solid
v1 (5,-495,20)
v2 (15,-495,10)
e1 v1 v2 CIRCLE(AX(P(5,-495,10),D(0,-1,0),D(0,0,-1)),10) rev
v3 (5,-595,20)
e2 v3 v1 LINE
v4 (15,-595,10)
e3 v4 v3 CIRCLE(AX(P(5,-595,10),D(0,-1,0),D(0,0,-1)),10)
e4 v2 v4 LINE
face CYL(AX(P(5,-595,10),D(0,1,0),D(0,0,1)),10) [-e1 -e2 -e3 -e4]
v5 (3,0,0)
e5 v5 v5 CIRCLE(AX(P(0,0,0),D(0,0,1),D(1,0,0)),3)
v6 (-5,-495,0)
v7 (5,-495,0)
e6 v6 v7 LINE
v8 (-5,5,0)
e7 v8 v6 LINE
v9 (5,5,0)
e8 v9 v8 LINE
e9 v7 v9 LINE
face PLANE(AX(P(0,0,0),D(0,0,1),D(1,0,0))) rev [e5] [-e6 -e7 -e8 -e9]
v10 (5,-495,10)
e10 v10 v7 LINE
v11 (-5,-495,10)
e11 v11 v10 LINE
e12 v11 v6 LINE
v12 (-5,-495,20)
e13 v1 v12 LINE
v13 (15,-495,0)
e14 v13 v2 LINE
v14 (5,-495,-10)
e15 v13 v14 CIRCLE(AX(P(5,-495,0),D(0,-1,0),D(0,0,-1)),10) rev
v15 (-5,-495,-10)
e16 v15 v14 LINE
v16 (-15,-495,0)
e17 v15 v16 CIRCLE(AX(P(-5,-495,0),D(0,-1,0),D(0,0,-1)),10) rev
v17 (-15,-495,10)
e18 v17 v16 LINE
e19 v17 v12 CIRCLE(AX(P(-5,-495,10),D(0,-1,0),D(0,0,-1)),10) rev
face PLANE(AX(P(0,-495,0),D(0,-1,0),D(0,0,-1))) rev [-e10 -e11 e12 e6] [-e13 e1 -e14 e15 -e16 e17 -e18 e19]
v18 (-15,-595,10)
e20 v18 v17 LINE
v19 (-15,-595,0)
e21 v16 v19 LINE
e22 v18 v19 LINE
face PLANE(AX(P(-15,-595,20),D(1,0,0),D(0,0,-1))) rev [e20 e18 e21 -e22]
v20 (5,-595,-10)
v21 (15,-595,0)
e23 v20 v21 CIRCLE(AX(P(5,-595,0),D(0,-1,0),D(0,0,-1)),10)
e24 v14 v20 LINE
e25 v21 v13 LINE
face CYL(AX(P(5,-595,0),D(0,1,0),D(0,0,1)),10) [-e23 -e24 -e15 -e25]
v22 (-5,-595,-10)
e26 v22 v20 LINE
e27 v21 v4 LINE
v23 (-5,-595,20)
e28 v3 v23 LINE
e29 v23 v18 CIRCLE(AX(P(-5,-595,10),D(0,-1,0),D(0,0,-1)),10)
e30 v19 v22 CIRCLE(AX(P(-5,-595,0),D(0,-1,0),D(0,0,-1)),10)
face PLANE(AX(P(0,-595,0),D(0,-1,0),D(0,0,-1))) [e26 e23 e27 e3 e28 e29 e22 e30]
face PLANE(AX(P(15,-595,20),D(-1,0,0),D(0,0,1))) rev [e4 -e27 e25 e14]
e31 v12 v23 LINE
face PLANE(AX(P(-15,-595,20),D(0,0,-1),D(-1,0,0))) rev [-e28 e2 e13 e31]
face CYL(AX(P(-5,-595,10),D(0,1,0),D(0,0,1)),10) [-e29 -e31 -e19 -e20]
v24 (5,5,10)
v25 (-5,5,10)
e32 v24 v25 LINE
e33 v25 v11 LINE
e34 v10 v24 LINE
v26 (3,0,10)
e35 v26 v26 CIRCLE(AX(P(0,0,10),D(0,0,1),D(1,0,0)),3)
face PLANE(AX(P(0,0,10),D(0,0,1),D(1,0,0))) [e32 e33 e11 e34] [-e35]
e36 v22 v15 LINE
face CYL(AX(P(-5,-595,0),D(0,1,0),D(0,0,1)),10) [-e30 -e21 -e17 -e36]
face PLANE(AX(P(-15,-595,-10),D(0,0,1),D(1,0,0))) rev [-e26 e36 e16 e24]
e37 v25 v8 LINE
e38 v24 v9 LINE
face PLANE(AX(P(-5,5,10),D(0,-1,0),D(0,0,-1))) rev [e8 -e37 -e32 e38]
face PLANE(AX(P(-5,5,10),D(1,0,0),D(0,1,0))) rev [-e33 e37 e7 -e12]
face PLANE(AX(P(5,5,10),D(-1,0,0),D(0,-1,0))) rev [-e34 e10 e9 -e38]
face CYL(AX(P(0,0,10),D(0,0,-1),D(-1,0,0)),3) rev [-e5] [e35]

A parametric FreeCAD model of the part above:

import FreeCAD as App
import Part
import Sketcher
Q = App.Units.Quantity


def edges_at(feature, points):
    """Names of the edges that pass closest to the given points."""
    edges = feature.Shape.Edges
    near = lambda p: min(range(len(edges)), key=lambda i: edges[i].distToShape(Part.Vertex(*p))[0])
    return sorted({f"Edge{near(p) + 1}" for p in points})

doc = App.newDocument("Part")
body = doc.addObject("PartDesign::Body", "Body")

sketch1 = body.newObject("Sketcher::SketchObject", "Sketch")
sketch1.AttachmentSupport = (doc.getObject("XY_Plane"), [""])
sketch1.MapMode = "FlatFace"
sketch1.addGeometry([
    Part.LineSegment(App.Vector(-5, 5, 0), App.Vector(-5, -495, 0)),
    Part.LineSegment(App.Vector(-5, -495, 0), App.Vector(5, -495, 0)),
    Part.LineSegment(App.Vector(5, -495, 0), App.Vector(5, 5, 0)),
    Part.LineSegment(App.Vector(5, 5, 0), App.Vector(-5, 5, 0)),
    Part.Circle(App.Vector(0, 0, 0), App.Vector(0, 0, 1), 3),
], False)
sketch1.addConstraint([
    Sketcher.Constraint("Coincident", 0, 2, 1, 1),
    Sketcher.Constraint("Coincident", 1, 2, 2, 1),
    Sketcher.Constraint("Coincident", 2, 2, 3, 1),
    Sketcher.Constraint("Coincident", 3, 2, 0, 1),
    Sketcher.Constraint("Vertical", 0),
    Sketcher.Constraint("Horizontal", 1),
    Sketcher.Constraint("Vertical", 2),
    Sketcher.Constraint("Horizontal", 3),
    Sketcher.Constraint("Coincident", 4, 3, -1, 1),
    Sketcher.Constraint("Diameter", 4, Q("6 mm")),
    Sketcher.Constraint("DistanceX", 1, 1, 1, 2, Q("10 mm")),
    Sketcher.Constraint("DistanceY", 0, 2, 0, 1, Q("500 mm")),
    Sketcher.Constraint("DistanceX", 0, 2, -1, 1, Q("5 mm")),
    Sketcher.Constraint("DistanceY", 0, 2, -1, 1, Q("495 mm")),
])
pad1 = body.newObject("PartDesign::Pad", "Pad")
pad1.Profile = sketch1
pad1.Length = 10

sketch2 = body.newObject("Sketcher::SketchObject", "Sketch001")
sketch2.AttachmentSupport = (doc.getObject("XZ_Plane"), [""])
sketch2.MapMode = "FlatFace"
sketch2.AttachmentOffset = App.Placement(App.Vector(0, 0, 495), App.Rotation())
sketch2.addGeometry([
    Part.LineSegment(App.Vector(-15, 20, 0), App.Vector(-15, -10, 0)),
    Part.LineSegment(App.Vector(-15, -10, 0), App.Vector(15, -10, 0)),
    Part.LineSegment(App.Vector(15, -10, 0), App.Vector(15, 20, 0)),
    Part.LineSegment(App.Vector(15, 20, 0), App.Vector(-15, 20, 0)),
], False)
sketch2.addConstraint([
    Sketcher.Constraint("Coincident", 0, 2, 1, 1),
    Sketcher.Constraint("Coincident", 1, 2, 2, 1),
    Sketcher.Constraint("Coincident", 2, 2, 3, 1),
    Sketcher.Constraint("Coincident", 3, 2, 0, 1),
    Sketcher.Constraint("Vertical", 0),
    Sketcher.Constraint("Horizontal", 1),
    Sketcher.Constraint("Vertical", 2),
    Sketcher.Constraint("Horizontal", 3),
    Sketcher.Constraint("Equal", 3, 0),
    Sketcher.Constraint("DistanceX", 1, 1, 1, 2, Q("30 mm")),
    Sketcher.Constraint("DistanceX", 0, 2, -1, 1, Q("15 mm")),
    Sketcher.Constraint("DistanceY", 0, 2, -1, 1, Q("10 mm")),
])
pad2 = body.newObject("PartDesign::Pad", "Pad001")
pad2.Profile = sketch2
pad2.Length = 100
doc.recompute()

fillet = body.newObject("PartDesign::Fillet", "Fillet")
fillet.Base = (pad2, edges_at(pad2, [
    (15, -545, -10),
    (15, -545, 20),
    (-15, -545, 20),
    (-15, -545, -10),
]))
fillet.Radius = 10

doc.recompute()
